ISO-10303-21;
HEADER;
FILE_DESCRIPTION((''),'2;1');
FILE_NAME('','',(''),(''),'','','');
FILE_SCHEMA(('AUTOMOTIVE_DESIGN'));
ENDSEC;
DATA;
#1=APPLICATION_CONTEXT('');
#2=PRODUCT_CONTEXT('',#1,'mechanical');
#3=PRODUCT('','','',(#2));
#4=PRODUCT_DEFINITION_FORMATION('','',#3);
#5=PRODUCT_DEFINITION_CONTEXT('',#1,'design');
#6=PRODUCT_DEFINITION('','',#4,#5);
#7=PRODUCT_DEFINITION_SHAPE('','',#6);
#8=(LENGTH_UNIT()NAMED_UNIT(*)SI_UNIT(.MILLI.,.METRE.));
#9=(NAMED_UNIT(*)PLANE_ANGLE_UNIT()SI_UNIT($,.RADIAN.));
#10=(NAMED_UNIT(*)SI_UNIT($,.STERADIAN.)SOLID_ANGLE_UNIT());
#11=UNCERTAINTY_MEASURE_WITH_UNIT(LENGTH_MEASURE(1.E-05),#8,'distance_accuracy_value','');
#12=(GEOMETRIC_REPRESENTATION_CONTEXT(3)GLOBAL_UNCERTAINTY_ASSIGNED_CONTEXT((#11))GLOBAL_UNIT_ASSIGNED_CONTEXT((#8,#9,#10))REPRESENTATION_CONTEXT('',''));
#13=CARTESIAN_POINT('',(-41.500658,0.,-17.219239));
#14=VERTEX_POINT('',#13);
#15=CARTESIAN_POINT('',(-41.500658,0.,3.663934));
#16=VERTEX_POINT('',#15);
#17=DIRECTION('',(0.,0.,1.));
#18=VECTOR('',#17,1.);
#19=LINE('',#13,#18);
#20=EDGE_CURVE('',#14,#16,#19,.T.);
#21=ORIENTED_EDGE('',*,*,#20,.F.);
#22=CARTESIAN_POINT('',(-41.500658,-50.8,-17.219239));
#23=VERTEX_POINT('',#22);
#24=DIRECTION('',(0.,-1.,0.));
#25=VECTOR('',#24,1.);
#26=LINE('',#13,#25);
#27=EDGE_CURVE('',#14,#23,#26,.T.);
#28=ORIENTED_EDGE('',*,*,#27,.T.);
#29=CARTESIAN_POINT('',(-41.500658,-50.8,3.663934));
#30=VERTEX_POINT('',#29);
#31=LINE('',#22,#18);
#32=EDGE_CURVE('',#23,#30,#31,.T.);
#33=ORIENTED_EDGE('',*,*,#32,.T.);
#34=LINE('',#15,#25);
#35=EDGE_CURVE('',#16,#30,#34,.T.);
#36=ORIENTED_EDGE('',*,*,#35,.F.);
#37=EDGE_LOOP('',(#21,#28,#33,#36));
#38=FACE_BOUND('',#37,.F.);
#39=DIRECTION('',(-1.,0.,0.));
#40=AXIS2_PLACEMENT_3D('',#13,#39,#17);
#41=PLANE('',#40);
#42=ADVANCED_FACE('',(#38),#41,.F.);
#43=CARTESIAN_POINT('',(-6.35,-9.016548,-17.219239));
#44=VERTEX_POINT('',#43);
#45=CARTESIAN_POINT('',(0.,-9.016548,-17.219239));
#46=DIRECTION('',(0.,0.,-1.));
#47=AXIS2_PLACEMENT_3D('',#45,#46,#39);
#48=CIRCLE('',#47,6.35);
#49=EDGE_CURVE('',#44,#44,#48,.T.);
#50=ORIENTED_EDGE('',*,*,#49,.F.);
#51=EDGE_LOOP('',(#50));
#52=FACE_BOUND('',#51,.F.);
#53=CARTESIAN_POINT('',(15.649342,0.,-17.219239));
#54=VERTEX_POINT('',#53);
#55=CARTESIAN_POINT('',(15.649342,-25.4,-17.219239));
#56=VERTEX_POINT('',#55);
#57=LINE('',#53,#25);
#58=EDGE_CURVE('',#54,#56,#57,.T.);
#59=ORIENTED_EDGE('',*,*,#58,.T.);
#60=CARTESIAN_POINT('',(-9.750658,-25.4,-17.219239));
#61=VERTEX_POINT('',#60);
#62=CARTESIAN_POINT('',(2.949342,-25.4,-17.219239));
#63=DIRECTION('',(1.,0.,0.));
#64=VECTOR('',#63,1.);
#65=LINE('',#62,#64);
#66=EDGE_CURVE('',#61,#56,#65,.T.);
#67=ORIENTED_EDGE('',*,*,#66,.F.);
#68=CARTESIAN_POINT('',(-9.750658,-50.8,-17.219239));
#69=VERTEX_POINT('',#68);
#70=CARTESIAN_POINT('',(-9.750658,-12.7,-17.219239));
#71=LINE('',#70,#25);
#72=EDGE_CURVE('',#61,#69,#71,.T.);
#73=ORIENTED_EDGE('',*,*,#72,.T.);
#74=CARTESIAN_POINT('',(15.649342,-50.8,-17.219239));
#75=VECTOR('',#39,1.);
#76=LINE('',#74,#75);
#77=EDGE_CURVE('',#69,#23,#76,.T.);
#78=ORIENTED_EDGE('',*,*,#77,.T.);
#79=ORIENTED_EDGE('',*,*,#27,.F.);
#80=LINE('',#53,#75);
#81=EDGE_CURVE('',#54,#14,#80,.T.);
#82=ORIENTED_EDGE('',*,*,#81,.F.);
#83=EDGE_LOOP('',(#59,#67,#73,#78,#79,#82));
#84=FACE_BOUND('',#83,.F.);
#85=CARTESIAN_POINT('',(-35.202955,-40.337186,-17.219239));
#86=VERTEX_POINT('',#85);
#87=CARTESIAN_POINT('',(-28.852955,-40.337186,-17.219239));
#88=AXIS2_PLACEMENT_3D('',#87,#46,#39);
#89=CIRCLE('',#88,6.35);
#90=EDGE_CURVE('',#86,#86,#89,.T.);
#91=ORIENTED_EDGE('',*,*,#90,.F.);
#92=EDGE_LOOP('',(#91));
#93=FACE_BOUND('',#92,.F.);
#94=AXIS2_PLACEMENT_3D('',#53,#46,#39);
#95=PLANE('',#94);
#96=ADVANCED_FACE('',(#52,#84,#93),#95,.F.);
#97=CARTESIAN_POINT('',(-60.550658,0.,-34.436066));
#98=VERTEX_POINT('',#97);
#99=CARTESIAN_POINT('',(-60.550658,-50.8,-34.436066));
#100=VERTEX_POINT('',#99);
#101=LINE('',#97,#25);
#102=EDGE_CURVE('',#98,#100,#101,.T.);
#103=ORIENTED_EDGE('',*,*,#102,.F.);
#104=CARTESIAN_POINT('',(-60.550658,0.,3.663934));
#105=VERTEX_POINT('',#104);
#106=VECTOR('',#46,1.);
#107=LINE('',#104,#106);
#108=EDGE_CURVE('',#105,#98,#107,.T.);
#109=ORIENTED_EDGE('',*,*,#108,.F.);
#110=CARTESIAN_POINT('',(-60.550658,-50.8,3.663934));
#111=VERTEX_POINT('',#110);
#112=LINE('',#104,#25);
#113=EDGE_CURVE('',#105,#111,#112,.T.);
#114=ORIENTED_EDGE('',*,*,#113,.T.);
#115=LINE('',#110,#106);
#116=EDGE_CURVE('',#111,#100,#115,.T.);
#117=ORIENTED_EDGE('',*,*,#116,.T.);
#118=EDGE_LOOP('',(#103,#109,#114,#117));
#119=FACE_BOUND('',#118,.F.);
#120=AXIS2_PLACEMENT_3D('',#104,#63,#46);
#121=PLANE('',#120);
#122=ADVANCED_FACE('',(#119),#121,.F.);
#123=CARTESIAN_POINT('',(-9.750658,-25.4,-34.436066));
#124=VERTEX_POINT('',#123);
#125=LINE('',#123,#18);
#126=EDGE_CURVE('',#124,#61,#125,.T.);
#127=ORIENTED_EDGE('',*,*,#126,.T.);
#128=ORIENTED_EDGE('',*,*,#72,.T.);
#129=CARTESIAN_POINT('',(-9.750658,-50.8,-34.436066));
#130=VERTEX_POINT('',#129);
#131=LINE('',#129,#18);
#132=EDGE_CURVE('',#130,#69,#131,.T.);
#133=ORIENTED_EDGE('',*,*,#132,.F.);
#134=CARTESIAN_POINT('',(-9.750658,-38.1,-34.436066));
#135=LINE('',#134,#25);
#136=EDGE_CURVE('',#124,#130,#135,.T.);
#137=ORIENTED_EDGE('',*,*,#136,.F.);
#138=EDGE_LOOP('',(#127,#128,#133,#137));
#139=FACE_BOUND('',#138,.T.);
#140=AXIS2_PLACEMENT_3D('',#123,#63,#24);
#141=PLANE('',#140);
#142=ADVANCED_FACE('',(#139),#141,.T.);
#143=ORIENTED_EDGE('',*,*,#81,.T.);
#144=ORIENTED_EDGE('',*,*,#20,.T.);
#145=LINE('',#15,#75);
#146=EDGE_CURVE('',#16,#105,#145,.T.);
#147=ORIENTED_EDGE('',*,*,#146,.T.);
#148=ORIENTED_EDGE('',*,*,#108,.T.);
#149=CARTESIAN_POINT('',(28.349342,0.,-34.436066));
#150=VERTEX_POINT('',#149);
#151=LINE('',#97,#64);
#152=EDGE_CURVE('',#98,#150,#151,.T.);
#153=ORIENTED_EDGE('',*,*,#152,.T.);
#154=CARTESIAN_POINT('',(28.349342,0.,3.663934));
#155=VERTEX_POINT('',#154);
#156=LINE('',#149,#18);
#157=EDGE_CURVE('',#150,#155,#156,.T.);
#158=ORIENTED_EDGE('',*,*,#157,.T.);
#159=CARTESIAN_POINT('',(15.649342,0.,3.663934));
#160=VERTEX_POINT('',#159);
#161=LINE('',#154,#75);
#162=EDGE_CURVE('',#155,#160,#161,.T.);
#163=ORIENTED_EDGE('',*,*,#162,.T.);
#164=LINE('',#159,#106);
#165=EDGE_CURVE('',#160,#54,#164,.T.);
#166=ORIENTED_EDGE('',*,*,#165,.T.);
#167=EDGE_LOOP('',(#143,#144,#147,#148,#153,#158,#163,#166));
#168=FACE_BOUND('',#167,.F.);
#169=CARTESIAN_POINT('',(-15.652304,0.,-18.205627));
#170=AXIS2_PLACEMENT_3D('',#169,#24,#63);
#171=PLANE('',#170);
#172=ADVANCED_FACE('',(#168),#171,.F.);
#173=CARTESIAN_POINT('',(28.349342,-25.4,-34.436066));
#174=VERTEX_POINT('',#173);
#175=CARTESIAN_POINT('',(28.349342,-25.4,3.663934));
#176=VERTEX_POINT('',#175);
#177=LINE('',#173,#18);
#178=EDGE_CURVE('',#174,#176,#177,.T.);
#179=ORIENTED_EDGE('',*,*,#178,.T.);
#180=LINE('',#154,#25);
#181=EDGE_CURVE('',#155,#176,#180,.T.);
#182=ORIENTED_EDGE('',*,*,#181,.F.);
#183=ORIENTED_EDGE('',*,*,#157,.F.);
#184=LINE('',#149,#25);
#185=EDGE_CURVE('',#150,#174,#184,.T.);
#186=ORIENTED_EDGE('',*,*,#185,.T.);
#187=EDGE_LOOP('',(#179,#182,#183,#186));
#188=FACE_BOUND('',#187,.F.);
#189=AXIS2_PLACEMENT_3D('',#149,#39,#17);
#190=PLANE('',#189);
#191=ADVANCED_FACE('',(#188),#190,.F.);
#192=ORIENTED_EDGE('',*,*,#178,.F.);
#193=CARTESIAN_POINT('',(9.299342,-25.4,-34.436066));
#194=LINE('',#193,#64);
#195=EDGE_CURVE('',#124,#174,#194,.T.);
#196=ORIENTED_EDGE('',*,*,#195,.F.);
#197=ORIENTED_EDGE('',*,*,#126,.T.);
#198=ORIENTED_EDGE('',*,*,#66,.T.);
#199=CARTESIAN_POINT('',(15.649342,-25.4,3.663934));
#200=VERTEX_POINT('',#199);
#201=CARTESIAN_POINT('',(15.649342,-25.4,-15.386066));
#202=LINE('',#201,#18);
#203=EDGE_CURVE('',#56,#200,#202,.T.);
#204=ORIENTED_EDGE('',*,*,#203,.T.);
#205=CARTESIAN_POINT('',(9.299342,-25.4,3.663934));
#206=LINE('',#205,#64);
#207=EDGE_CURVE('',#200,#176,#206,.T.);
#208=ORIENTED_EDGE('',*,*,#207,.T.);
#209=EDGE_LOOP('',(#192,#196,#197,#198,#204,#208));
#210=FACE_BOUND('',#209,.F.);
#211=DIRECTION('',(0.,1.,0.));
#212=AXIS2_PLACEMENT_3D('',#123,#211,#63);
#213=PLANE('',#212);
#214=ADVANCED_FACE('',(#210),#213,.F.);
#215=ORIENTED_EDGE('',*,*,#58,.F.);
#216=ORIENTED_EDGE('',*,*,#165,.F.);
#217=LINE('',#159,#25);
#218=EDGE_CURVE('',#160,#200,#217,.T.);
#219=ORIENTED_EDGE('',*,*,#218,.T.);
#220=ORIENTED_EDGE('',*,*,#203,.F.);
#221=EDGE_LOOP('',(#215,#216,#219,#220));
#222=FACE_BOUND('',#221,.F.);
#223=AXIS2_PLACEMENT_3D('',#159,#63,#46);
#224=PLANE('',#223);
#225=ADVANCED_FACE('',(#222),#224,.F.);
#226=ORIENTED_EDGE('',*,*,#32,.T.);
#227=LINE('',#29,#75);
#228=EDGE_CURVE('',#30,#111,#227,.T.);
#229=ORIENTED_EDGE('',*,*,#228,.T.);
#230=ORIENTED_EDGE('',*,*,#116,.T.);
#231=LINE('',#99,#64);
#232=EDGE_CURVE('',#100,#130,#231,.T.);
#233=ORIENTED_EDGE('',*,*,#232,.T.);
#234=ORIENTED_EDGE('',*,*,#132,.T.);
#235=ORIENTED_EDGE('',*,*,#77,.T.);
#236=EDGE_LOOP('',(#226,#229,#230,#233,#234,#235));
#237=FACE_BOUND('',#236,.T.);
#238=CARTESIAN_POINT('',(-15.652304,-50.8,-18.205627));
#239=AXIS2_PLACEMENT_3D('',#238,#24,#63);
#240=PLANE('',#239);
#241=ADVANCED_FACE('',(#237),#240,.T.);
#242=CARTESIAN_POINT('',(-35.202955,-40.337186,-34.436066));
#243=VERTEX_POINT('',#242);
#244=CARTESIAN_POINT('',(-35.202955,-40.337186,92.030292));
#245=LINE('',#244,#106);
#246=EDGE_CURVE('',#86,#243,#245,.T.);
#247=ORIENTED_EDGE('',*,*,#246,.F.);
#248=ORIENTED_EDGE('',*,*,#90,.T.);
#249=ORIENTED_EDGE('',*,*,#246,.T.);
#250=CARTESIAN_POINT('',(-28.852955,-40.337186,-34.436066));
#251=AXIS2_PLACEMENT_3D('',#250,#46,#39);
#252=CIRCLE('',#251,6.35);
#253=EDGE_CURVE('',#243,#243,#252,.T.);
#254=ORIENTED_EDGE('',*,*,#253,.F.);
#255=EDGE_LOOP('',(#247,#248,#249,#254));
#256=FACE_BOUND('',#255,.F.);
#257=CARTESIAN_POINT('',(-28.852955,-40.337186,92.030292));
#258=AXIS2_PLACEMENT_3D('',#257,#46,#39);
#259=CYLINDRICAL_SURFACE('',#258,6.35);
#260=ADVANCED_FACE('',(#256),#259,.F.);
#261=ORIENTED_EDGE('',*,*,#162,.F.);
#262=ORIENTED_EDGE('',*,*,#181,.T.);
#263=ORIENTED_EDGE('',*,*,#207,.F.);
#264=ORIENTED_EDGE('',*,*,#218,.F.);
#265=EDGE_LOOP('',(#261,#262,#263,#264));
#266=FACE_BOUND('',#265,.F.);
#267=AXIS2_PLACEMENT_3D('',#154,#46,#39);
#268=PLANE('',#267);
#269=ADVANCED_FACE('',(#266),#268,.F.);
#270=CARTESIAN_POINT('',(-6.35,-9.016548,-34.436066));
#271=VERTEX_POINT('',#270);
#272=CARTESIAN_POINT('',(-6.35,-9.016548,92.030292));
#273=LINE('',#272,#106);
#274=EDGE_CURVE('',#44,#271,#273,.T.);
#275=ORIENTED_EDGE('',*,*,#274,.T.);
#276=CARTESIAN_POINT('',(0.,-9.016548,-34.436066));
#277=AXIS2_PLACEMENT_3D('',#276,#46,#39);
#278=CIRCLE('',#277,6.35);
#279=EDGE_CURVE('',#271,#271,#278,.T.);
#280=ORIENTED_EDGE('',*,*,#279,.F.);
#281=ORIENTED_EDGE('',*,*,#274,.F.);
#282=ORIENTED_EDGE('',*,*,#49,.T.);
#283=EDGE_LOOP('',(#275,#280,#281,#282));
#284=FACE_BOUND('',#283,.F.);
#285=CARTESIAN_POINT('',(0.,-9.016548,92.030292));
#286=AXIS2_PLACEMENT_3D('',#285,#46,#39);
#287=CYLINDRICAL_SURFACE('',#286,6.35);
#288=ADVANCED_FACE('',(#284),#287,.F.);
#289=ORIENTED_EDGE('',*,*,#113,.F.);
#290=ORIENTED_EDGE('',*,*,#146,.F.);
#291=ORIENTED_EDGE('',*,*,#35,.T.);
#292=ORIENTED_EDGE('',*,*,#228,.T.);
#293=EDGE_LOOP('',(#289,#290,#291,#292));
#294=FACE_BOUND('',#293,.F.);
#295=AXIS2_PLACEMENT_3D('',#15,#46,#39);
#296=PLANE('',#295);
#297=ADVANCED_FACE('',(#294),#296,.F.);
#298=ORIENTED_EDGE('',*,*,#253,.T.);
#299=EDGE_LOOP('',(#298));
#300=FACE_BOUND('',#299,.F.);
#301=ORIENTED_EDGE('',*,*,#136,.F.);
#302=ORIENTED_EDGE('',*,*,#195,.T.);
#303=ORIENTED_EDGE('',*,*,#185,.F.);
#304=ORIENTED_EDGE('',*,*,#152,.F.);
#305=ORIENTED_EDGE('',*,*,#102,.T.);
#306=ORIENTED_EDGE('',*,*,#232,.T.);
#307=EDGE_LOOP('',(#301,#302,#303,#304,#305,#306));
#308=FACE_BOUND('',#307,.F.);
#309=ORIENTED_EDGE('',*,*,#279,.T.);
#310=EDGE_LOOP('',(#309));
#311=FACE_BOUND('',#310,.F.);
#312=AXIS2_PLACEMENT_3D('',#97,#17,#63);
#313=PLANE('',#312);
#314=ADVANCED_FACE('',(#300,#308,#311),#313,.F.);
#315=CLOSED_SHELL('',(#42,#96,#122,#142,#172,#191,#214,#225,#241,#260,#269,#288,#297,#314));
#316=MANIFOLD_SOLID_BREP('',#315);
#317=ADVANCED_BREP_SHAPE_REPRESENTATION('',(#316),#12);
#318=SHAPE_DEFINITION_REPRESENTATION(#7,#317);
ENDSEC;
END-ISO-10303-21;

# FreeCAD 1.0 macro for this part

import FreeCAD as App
import Part
import Sketcher
from FreeCAD import Vector
Q = App.Units.Quantity

doc = App.newDocument("Part")
body = doc.addObject("PartDesign::Body", "Body")

# Sketch on XZ plane
sketch1 = body.newObject("Sketcher::SketchObject", "Sketch")
sketch1.AttachmentSupport = (doc.getObject("XZ_Plane"), [""])
sketch1.MapMode = "FlatFace"
sketch1.addGeometry(Part.LineSegment(Vector(-41.500658, 3.663934, 0), Vector(-60.550658, 3.663934, 0)), False)
sketch1.addGeometry(Part.LineSegment(Vector(-60.550658, 3.663934, 0), Vector(-60.550658, -34.436066, 0)), False)
sketch1.addGeometry(Part.LineSegment(Vector(-60.550658, -34.436066, 0), Vector(28.349342, -34.436066, 0)), False)
sketch1.addGeometry(Part.LineSegment(Vector(28.349342, -34.436066, 0), Vector(28.349342, 3.663934, 0)), False)
sketch1.addGeometry(Part.LineSegment(Vector(28.349342, 3.663934, 0), Vector(15.649342, 3.663934, 0)), False)
sketch1.addGeometry(Part.LineSegment(Vector(15.649342, 3.663934, 0), Vector(15.649342, -17.219239, 0)), False)
sketch1.addGeometry(Part.LineSegment(Vector(15.649342, -17.219239, 0), Vector(-41.500658, -17.219239, 0)), False)
sketch1.addGeometry(Part.LineSegment(Vector(-41.500658, -17.219239, 0), Vector(-41.500658, 3.663934, 0)), False)
sketch1.addConstraint(Sketcher.Constraint("Coincident", 0, 2, 1, 1))
sketch1.addConstraint(Sketcher.Constraint("Coincident", 1, 2, 2, 1))
sketch1.addConstraint(Sketcher.Constraint("Coincident", 2, 2, 3, 1))
sketch1.addConstraint(Sketcher.Constraint("Coincident", 3, 2, 4, 1))
sketch1.addConstraint(Sketcher.Constraint("Coincident", 4, 2, 5, 1))
sketch1.addConstraint(Sketcher.Constraint("Coincident", 5, 2, 6, 1))
sketch1.addConstraint(Sketcher.Constraint("Coincident", 6, 2, 7, 1))
sketch1.addConstraint(Sketcher.Constraint("Coincident", 7, 2, 0, 1))
sketch1.addConstraint(Sketcher.Constraint("Horizontal", 0))
sketch1.addConstraint(Sketcher.Constraint("Vertical", 1))
sketch1.addConstraint(Sketcher.Constraint("Horizontal", 2))
sketch1.addConstraint(Sketcher.Constraint("Vertical", 3))
sketch1.addConstraint(Sketcher.Constraint("Horizontal", 4))
sketch1.addConstraint(Sketcher.Constraint("Vertical", 5))
sketch1.addConstraint(Sketcher.Constraint("Horizontal", 6))
sketch1.addConstraint(Sketcher.Constraint("Vertical", 7))
sketch1.addConstraint(Sketcher.Constraint("Horizontal", 0, 2, 3, 2))
sketch1.addConstraint(Sketcher.Constraint("DistanceX", 2, 1, 2, 2, Q("3.5 in")))
sketch1.addConstraint(Sketcher.Constraint("DistanceX", 4, 2, 4, 1, Q("0.5 in")))
sketch1.addConstraint(Sketcher.Constraint("DistanceY", 1, 2, 1, 1, Q("1.5 in")))
sketch1.addConstraint(Sketcher.Constraint("DistanceX", 0, 2, 0, 1, Q("0.75 in")))
sketch1.addConstraint(Sketcher.Constraint("DistanceY", 5, 2, 5, 1, Q("20.883173 mm")))
sketch1.addConstraint(Sketcher.Constraint("DistanceX", -1, 1, 2, 2, Q("28.349342 mm")))
sketch1.addConstraint(Sketcher.Constraint("DistanceY", 5, 2, -1, 1, Q("17.219239 mm")))
pad1 = body.newObject("PartDesign::Pad", "Pad")
pad1.Profile = sketch1
pad1.Length = Q("2 in")

# Sketch on XY plane
sketch2 = body.newObject("Sketcher::SketchObject", "Sketch001")
sketch2.AttachmentSupport = (doc.getObject("XY_Plane"), [""])
sketch2.MapMode = "FlatFace"
sketch2.AttachmentOffset = App.Placement(Vector(0, 0, -34.436066), App.Rotation())
sketch2.addGeometry(Part.LineSegment(Vector(-9.750658, -50.8, 0), Vector(-9.750658, -25.4, 0)), False)
sketch2.addGeometry(Part.LineSegment(Vector(-9.750658, -25.4, 0), Vector(28.349342, -25.4, 0)), False)
sketch2.addGeometry(Part.LineSegment(Vector(28.349342, -25.4, 0), Vector(28.349342, -50.8, 0)), False)
sketch2.addGeometry(Part.LineSegment(Vector(28.349342, -50.8, 0), Vector(-9.750658, -50.8, 0)), False)
sketch2.addConstraint(Sketcher.Constraint("Coincident", 0, 2, 1, 1))
sketch2.addConstraint(Sketcher.Constraint("Coincident", 1, 2, 2, 1))
sketch2.addConstraint(Sketcher.Constraint("Coincident", 2, 2, 3, 1))
sketch2.addConstraint(Sketcher.Constraint("Coincident", 3, 2, 0, 1))
sketch2.addConstraint(Sketcher.Constraint("Vertical", 0))
sketch2.addConstraint(Sketcher.Constraint("Horizontal", 1))
sketch2.addConstraint(Sketcher.Constraint("Vertical", 2))
sketch2.addConstraint(Sketcher.Constraint("Horizontal", 3))
sketch2.addConstraint(Sketcher.Constraint("DistanceY", 0, 1, 0, 2, Q("1 in")))
sketch2.addConstraint(Sketcher.Constraint("DistanceX", 1, 1, 1, 2, Q("1.5 in")))
sketch2.addConstraint(Sketcher.Constraint("DistanceY", 0, 2, -1, 1, Q("1 in")))
sketch2.addConstraint(Sketcher.Constraint("DistanceX", -1, 1, 1, 2, Q("28.349342 mm")))
pocket1 = body.newObject("PartDesign::Pocket", "Pocket")
pocket1.Profile = sketch2
pocket1.Type = "ThroughAll"
pocket1.Reversed = True

# Sketch on XY plane
sketch3 = body.newObject("Sketcher::SketchObject", "Sketch002")
sketch3.AttachmentSupport = (doc.getObject("XY_Plane"), [""])
sketch3.MapMode = "FlatFace"
sketch3.AttachmentOffset = App.Placement(Vector(0, 0, -17.219239), App.Rotation())
sketch3.addGeometry(Part.Circle(Vector(-28.852955, -40.337186, 0), Vector(0, 0, 1), 6.35), False)
sketch3.addGeometry(Part.Circle(Vector(0, -9.016548, 0), Vector(0, 0, 1), 6.35), False)
sketch3.addConstraint(Sketcher.Constraint("Equal", 0, 1))
sketch3.addConstraint(Sketcher.Constraint("PointOnObject", 1, 3, -2))
sketch3.addConstraint(Sketcher.Constraint("Diameter", 0, Q("0.5 in")))
sketch3.addConstraint(Sketcher.Constraint("DistanceY", 0, 3, 1, 3, Q("31.320638 mm")))
sketch3.addConstraint(Sketcher.Constraint("DistanceX", 0, 3, -1, 1, Q("28.852955 mm")))
sketch3.addConstraint(Sketcher.Constraint("DistanceY", 0, 3, -1, 1, Q("40.337186 mm")))
doc.recompute()
hole = body.newObject("PartDesign::Hole", "Hole")
hole.Profile = sketch3
hole.ThreadType = "None"
hole.Diameter = Q("0.5 in")
hole.DepthType = "ThroughAll"

doc.recompute()
